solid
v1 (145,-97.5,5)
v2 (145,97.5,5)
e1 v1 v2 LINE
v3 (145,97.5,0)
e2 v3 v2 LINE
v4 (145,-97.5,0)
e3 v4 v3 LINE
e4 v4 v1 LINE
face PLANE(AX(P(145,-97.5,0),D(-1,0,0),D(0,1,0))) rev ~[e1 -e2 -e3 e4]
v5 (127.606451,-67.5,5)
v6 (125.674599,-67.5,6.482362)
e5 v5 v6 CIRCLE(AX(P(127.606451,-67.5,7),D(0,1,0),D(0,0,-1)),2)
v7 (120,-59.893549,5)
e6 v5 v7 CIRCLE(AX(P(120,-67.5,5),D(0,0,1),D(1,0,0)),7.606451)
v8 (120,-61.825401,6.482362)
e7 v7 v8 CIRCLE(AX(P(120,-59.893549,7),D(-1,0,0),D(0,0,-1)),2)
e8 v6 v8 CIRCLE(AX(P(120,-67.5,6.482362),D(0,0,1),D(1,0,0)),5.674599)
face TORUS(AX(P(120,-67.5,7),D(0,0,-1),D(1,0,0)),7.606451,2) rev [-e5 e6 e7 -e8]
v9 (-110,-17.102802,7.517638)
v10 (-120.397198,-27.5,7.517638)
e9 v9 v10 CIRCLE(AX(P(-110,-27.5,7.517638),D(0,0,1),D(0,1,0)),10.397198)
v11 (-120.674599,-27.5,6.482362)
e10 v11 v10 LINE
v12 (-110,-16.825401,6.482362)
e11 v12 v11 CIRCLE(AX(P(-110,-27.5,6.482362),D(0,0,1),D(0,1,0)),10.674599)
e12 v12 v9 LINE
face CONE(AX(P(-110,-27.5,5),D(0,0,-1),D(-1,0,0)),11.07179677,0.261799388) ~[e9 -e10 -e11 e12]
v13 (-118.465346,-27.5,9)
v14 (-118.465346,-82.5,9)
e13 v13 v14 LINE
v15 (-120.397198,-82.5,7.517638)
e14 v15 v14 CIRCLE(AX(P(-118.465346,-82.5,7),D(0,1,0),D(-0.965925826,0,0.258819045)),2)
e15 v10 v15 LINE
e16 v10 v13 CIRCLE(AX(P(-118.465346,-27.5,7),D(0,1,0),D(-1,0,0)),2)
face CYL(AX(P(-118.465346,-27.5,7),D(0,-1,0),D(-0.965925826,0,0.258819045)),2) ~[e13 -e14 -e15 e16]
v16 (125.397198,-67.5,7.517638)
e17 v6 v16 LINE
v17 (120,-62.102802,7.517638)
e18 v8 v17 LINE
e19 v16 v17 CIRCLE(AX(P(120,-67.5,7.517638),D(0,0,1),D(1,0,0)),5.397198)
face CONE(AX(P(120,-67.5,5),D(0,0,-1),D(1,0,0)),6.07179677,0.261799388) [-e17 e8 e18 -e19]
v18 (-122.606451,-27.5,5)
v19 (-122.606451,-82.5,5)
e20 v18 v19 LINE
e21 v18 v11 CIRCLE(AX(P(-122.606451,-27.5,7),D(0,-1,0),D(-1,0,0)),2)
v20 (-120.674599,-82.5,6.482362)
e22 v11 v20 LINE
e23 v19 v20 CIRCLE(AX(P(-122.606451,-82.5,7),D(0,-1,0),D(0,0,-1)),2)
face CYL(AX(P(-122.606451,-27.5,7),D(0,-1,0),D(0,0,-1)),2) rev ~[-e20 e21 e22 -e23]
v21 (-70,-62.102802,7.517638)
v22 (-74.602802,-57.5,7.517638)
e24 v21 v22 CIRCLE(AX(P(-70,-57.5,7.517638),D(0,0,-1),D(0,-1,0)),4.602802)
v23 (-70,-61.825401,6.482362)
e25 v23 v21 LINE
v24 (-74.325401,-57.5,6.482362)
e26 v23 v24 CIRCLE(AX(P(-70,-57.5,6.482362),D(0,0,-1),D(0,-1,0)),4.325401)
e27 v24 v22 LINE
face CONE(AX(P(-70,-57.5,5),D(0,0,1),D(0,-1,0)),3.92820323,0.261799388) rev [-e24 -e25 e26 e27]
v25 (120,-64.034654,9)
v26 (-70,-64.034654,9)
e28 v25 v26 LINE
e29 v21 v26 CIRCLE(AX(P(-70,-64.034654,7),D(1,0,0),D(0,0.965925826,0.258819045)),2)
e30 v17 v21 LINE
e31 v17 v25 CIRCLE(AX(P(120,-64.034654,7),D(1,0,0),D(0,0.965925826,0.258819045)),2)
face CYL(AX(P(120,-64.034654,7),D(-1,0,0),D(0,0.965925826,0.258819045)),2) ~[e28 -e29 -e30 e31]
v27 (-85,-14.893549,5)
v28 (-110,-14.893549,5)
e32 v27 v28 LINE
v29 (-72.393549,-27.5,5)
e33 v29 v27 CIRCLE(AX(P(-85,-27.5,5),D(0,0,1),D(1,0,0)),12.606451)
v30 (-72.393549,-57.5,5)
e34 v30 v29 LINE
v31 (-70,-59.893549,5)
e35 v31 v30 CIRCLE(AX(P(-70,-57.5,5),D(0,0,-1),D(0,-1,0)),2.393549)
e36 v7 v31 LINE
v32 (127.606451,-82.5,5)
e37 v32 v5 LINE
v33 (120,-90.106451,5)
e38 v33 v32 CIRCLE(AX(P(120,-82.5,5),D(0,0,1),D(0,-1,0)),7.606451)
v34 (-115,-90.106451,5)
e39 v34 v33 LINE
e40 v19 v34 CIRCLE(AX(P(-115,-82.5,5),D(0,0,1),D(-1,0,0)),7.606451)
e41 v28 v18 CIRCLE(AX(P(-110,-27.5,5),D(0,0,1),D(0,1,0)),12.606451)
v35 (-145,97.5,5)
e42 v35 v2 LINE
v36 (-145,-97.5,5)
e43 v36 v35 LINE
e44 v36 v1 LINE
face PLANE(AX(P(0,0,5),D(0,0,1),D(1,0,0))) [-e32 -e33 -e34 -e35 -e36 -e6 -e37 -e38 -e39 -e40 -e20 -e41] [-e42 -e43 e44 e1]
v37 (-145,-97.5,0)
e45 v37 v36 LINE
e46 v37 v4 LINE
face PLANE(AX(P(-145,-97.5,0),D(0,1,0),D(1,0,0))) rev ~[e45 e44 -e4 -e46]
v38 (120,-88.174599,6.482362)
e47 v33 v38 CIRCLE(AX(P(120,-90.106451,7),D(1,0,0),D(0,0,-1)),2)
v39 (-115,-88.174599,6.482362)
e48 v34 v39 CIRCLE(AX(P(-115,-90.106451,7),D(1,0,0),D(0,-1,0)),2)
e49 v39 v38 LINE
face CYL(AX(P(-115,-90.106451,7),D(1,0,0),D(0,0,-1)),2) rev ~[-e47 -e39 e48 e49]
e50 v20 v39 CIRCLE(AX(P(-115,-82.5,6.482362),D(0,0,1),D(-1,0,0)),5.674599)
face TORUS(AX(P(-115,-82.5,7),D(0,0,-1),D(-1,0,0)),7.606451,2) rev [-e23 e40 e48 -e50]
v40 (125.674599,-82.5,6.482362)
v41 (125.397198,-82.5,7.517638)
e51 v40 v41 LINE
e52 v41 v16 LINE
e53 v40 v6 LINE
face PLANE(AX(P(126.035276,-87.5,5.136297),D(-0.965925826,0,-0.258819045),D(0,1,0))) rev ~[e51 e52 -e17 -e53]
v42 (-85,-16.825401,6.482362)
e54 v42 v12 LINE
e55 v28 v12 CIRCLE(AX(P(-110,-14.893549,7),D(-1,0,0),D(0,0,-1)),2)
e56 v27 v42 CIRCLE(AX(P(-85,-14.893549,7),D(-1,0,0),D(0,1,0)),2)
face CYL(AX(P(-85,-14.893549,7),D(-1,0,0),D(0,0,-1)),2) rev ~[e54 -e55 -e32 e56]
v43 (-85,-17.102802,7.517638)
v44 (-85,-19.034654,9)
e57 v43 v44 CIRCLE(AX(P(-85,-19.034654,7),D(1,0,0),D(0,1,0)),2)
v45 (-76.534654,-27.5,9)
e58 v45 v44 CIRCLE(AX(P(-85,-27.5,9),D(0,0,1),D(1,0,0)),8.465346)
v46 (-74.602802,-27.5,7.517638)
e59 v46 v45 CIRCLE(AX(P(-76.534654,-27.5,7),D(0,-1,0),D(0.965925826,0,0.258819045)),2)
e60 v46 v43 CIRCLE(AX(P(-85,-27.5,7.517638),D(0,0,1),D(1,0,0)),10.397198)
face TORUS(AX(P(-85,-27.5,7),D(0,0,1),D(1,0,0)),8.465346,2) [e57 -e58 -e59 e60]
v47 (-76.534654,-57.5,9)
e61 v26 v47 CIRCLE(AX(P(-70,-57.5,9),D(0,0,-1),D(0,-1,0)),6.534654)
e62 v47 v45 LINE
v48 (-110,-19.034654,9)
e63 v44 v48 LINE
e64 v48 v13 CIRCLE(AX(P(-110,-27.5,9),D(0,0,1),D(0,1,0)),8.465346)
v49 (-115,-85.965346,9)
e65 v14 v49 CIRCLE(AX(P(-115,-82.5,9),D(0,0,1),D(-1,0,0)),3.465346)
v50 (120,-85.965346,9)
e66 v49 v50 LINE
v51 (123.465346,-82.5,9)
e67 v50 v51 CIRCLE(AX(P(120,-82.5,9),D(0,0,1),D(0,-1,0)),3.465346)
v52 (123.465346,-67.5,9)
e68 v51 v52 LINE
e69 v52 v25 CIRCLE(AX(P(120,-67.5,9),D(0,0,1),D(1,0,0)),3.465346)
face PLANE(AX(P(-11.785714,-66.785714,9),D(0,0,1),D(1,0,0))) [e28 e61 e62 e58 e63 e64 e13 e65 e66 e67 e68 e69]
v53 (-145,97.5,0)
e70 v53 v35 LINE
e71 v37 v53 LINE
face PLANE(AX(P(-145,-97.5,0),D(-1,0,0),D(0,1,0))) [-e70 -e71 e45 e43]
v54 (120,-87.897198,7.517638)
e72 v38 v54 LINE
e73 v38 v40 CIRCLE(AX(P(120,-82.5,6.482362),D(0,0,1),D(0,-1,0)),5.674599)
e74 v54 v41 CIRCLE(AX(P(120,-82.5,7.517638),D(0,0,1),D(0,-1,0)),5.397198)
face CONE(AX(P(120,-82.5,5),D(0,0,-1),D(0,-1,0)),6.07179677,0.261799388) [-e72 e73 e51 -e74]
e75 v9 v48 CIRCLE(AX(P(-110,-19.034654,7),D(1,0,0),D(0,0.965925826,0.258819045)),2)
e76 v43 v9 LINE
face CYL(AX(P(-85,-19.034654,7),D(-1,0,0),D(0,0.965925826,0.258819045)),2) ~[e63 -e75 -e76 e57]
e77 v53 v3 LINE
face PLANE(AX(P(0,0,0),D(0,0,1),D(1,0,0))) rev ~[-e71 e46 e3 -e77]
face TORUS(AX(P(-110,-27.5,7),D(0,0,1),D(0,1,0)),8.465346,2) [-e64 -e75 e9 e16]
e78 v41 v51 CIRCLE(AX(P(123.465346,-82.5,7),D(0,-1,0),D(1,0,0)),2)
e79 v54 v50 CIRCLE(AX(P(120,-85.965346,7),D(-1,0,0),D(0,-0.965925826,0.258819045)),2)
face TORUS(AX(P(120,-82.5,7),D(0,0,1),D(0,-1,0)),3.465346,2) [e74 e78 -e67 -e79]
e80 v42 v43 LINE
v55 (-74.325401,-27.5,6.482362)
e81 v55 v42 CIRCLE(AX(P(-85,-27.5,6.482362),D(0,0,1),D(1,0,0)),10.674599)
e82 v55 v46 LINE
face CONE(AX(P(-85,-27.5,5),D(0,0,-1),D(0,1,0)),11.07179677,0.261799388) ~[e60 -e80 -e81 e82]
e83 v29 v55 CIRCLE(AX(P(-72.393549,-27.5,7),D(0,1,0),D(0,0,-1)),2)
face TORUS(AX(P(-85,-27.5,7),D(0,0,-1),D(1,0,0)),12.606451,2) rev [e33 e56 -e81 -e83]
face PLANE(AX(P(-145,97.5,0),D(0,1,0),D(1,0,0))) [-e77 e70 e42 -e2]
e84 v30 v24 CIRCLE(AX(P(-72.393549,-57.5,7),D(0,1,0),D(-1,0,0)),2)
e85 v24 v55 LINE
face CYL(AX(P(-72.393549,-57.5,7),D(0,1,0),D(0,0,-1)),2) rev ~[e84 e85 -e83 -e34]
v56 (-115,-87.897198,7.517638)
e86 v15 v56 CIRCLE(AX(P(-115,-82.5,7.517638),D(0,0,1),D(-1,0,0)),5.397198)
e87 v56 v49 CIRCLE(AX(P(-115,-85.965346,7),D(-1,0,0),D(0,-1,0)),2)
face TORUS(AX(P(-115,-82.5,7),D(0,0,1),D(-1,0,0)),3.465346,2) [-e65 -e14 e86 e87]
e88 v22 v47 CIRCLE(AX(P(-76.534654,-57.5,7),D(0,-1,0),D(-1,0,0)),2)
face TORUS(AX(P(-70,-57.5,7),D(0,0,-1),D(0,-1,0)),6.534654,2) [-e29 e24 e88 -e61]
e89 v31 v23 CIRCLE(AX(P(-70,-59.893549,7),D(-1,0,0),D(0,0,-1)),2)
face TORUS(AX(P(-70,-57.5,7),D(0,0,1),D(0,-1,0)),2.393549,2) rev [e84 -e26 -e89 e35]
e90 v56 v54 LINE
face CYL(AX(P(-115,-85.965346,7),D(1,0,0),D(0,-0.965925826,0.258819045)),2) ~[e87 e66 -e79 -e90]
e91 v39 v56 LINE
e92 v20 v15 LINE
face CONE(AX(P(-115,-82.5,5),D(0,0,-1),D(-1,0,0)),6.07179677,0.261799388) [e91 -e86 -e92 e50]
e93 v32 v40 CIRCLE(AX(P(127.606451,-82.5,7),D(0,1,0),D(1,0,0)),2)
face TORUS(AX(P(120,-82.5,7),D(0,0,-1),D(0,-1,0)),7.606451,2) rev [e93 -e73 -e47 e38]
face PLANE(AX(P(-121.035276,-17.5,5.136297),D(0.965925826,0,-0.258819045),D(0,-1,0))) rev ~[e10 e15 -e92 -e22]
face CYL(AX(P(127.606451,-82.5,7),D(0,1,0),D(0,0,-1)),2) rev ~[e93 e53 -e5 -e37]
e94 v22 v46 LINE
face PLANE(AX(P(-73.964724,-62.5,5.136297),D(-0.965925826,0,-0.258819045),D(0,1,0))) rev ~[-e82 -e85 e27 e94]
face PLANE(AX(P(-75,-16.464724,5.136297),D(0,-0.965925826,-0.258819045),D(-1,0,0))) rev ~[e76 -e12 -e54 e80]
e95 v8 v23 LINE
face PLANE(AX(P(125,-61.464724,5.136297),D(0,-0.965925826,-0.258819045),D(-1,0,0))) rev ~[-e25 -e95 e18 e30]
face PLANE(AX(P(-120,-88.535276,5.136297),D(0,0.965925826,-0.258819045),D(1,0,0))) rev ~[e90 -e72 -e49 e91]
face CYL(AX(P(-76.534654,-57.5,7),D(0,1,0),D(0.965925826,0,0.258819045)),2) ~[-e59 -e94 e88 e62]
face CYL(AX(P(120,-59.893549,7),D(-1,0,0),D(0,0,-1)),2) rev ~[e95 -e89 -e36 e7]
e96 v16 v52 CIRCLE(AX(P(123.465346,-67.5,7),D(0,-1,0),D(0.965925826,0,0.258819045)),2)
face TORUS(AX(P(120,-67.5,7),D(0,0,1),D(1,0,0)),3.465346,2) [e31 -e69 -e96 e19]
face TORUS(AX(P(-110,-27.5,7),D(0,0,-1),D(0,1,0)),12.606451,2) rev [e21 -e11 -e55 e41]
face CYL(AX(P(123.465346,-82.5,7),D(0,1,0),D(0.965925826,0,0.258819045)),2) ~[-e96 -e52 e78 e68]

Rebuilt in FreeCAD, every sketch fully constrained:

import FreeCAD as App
import Part
import Sketcher
from FreeCAD import Vector
Q = App.Units.Quantity


def edges_at(feature, points):
    """Names of the edges that pass closest to the given points."""
    edges = feature.Shape.Edges
    near = lambda p: min(range(len(edges)), key=lambda i: edges[i].distToShape(Part.Vertex(*p))[0])
    return sorted({f"Edge{near(p) + 1}" for p in points})


def faces_at(feature, points):
    """Names of the faces that lie closest to the given points."""
    faces = feature.Shape.Faces
    near = lambda p: min(range(len(faces)), key=lambda i: faces[i].distToShape(Part.Vertex(*p))[0])
    return sorted({f"Face{near(p) + 1}" for p in points})


def add_polygon(sketch, points):
    """Adds a closed chain of lines whose ends are joined by coincident constraints."""
    first, n = sketch.GeometryCount, len(points)
    for a, b in zip(points, points[1:] + points[:1]):
        sketch.addGeometry(Part.LineSegment(App.Vector(*a, 0), App.Vector(*b, 0)), False)
    for i in range(n):
        sketch.addConstraint(Sketcher.Constraint("Coincident", first + i, 2, first + (i + 1) % n, 1))

doc = App.newDocument("Part")
body = doc.addObject("PartDesign::Body", "Body")

sketch1 = body.newObject("Sketcher::SketchObject", "Sketch")
sketch1.AttachmentSupport = (doc.getObject("XY_Plane"), [""])
sketch1.MapMode = "FlatFace"
add_polygon(sketch1, [(-145, 97.5), (-145, -97.5), (145, -97.5), (145, 97.5)])
sketch1.addConstraint(Sketcher.Constraint("Vertical", 0))
sketch1.addConstraint(Sketcher.Constraint("Horizontal", 1))
sketch1.addConstraint(Sketcher.Constraint("Vertical", 2))
sketch1.addConstraint(Sketcher.Constraint("Horizontal", 3))
sketch1.addConstraint(Sketcher.Constraint("Symmetric", 0, 2, 2, 2, -1, 1))
sketch1.addConstraint(Sketcher.Constraint("DistanceX", 1, 1, 1, 2, Q("290 mm")))
sketch1.addConstraint(Sketcher.Constraint("DistanceY", 0, 2, 0, 1, Q("195 mm")))
pad1 = body.newObject("PartDesign::Pad", "Pad")
pad1.Profile = sketch1
pad1.Length = 5

sketch2 = body.newObject("Sketcher::SketchObject", "Sketch001")
sketch2.AttachmentSupport = (doc.getObject("XY_Plane"), [""])
sketch2.MapMode = "FlatFace"
sketch2.AttachmentOffset = App.Placement(Vector(0, 0, 5), App.Rotation())
add_polygon(sketch2, [(-75, -17.5), (-120, -17.5), (-120, -87.5), (125, -87.5), (125, -62.5), (-75, -62.5)])
sketch2.addConstraint(Sketcher.Constraint("Horizontal", 0))
sketch2.addConstraint(Sketcher.Constraint("Vertical", 1))
sketch2.addConstraint(Sketcher.Constraint("Horizontal", 2))
sketch2.addConstraint(Sketcher.Constraint("Vertical", 3))
sketch2.addConstraint(Sketcher.Constraint("Horizontal", 4))
sketch2.addConstraint(Sketcher.Constraint("Vertical", 5))
sketch2.addConstraint(Sketcher.Constraint("Equal", 0, 5))
sketch2.addConstraint(Sketcher.Constraint("DistanceX", 0, 2, 0, 1, Q("45 mm")))
sketch2.addConstraint(Sketcher.Constraint("DistanceX", 2, 1, 2, 2, Q("245 mm")))
sketch2.addConstraint(Sketcher.Constraint("DistanceY", 1, 2, 1, 1, Q("70 mm")))
sketch2.addConstraint(Sketcher.Constraint("DistanceX", 0, 2, -1, 1, Q("120 mm")))
sketch2.addConstraint(Sketcher.Constraint("DistanceY", 0, 2, -1, 1, Q("17.5 mm")))
pad2 = body.newObject("PartDesign::Pad", "Pad001")
pad2.Profile = sketch2
pad2.Length = 4
doc.recompute()

fillet = body.newObject("PartDesign::Fillet", "Fillet")
fillet.Base = (pad2, edges_at(pad2, [
    (-75, -62.5, 7),
    (-120, -87.5, 7),
    (125, -87.5, 7),
    (125, -62.5, 7),
]))
fillet.Radius = 5
doc.recompute()

fillet2 = body.newObject("PartDesign::Fillet", "Fillet001")
fillet2.Base = (fillet, edges_at(fillet, [(-75, -17.5, 7), (-120, -17.5, 7)]))
fillet2.Radius = 10
doc.recompute()

datumplane = body.newObject("PartDesign::Plane", "DatumPlane")
datumplane.AttachmentSupport = (doc.getObject("XY_Plane"), [""])
datumplane.MapMode = "FlatFace"
datumplane.AttachmentOffset = App.Placement(Vector(0, 0, 9), App.Rotation())
draft = body.newObject("PartDesign::Draft", "Draft")
draft.Base = (fillet2, faces_at(fillet2, [
    (-73.536, -61.036, 7),
    (123.536, -63.964, 7),
    (123.536, -86.036, 7),
    (125, -75, 7),
    (25, -62.5, 7),
    (-75, -42.5, 7),
    (-77.929, -20.429, 7),
    (-97.5, -17.5, 7),
    (-117.071, -20.429, 7),
    (-120, -55, 7),
    (-118.536, -86.036, 7),
    (2.5, -87.5, 7),
]))
draft.NeutralPlane = (datumplane, [""])
draft.Angle = 15
draft.Reversed = False
doc.recompute()

fillet3 = body.newObject("PartDesign::Fillet", "Fillet002")
fillet3.Base = (draft, edges_at(draft, [
    (25, -61.428, 5),
    (25, -62.5, 9),
    (126.072, -75, 5),
    (125, -75, 9),
    (-75, -42.5, 9),
    (2.5, -87.5, 9),
    (-118.536, -86.036, 9),
    (123.536, -86.036, 9),
    (123.536, -63.964, 9),
    (-73.928, -42.5, 5),
    (2.5, -88.572, 5),
    (-72.778, -60.278, 5),
    (124.293, -63.207, 5),
    (-73.536, -61.036, 9),
    (124.293, -86.793, 5),
    (-119.293, -86.793, 5),
    (-97.5, -16.428, 5),
    (-97.5, -17.5, 9),
    (-120, -55, 9),
    (-117.071, -20.429, 9),
    (-77.929, -20.429, 9),
    (-121.072, -55, 5),
    (-77.171, -19.671, 5),
    (-117.829, -19.671, 5),
]))
fillet3.Radius = 2

doc.recompute()
